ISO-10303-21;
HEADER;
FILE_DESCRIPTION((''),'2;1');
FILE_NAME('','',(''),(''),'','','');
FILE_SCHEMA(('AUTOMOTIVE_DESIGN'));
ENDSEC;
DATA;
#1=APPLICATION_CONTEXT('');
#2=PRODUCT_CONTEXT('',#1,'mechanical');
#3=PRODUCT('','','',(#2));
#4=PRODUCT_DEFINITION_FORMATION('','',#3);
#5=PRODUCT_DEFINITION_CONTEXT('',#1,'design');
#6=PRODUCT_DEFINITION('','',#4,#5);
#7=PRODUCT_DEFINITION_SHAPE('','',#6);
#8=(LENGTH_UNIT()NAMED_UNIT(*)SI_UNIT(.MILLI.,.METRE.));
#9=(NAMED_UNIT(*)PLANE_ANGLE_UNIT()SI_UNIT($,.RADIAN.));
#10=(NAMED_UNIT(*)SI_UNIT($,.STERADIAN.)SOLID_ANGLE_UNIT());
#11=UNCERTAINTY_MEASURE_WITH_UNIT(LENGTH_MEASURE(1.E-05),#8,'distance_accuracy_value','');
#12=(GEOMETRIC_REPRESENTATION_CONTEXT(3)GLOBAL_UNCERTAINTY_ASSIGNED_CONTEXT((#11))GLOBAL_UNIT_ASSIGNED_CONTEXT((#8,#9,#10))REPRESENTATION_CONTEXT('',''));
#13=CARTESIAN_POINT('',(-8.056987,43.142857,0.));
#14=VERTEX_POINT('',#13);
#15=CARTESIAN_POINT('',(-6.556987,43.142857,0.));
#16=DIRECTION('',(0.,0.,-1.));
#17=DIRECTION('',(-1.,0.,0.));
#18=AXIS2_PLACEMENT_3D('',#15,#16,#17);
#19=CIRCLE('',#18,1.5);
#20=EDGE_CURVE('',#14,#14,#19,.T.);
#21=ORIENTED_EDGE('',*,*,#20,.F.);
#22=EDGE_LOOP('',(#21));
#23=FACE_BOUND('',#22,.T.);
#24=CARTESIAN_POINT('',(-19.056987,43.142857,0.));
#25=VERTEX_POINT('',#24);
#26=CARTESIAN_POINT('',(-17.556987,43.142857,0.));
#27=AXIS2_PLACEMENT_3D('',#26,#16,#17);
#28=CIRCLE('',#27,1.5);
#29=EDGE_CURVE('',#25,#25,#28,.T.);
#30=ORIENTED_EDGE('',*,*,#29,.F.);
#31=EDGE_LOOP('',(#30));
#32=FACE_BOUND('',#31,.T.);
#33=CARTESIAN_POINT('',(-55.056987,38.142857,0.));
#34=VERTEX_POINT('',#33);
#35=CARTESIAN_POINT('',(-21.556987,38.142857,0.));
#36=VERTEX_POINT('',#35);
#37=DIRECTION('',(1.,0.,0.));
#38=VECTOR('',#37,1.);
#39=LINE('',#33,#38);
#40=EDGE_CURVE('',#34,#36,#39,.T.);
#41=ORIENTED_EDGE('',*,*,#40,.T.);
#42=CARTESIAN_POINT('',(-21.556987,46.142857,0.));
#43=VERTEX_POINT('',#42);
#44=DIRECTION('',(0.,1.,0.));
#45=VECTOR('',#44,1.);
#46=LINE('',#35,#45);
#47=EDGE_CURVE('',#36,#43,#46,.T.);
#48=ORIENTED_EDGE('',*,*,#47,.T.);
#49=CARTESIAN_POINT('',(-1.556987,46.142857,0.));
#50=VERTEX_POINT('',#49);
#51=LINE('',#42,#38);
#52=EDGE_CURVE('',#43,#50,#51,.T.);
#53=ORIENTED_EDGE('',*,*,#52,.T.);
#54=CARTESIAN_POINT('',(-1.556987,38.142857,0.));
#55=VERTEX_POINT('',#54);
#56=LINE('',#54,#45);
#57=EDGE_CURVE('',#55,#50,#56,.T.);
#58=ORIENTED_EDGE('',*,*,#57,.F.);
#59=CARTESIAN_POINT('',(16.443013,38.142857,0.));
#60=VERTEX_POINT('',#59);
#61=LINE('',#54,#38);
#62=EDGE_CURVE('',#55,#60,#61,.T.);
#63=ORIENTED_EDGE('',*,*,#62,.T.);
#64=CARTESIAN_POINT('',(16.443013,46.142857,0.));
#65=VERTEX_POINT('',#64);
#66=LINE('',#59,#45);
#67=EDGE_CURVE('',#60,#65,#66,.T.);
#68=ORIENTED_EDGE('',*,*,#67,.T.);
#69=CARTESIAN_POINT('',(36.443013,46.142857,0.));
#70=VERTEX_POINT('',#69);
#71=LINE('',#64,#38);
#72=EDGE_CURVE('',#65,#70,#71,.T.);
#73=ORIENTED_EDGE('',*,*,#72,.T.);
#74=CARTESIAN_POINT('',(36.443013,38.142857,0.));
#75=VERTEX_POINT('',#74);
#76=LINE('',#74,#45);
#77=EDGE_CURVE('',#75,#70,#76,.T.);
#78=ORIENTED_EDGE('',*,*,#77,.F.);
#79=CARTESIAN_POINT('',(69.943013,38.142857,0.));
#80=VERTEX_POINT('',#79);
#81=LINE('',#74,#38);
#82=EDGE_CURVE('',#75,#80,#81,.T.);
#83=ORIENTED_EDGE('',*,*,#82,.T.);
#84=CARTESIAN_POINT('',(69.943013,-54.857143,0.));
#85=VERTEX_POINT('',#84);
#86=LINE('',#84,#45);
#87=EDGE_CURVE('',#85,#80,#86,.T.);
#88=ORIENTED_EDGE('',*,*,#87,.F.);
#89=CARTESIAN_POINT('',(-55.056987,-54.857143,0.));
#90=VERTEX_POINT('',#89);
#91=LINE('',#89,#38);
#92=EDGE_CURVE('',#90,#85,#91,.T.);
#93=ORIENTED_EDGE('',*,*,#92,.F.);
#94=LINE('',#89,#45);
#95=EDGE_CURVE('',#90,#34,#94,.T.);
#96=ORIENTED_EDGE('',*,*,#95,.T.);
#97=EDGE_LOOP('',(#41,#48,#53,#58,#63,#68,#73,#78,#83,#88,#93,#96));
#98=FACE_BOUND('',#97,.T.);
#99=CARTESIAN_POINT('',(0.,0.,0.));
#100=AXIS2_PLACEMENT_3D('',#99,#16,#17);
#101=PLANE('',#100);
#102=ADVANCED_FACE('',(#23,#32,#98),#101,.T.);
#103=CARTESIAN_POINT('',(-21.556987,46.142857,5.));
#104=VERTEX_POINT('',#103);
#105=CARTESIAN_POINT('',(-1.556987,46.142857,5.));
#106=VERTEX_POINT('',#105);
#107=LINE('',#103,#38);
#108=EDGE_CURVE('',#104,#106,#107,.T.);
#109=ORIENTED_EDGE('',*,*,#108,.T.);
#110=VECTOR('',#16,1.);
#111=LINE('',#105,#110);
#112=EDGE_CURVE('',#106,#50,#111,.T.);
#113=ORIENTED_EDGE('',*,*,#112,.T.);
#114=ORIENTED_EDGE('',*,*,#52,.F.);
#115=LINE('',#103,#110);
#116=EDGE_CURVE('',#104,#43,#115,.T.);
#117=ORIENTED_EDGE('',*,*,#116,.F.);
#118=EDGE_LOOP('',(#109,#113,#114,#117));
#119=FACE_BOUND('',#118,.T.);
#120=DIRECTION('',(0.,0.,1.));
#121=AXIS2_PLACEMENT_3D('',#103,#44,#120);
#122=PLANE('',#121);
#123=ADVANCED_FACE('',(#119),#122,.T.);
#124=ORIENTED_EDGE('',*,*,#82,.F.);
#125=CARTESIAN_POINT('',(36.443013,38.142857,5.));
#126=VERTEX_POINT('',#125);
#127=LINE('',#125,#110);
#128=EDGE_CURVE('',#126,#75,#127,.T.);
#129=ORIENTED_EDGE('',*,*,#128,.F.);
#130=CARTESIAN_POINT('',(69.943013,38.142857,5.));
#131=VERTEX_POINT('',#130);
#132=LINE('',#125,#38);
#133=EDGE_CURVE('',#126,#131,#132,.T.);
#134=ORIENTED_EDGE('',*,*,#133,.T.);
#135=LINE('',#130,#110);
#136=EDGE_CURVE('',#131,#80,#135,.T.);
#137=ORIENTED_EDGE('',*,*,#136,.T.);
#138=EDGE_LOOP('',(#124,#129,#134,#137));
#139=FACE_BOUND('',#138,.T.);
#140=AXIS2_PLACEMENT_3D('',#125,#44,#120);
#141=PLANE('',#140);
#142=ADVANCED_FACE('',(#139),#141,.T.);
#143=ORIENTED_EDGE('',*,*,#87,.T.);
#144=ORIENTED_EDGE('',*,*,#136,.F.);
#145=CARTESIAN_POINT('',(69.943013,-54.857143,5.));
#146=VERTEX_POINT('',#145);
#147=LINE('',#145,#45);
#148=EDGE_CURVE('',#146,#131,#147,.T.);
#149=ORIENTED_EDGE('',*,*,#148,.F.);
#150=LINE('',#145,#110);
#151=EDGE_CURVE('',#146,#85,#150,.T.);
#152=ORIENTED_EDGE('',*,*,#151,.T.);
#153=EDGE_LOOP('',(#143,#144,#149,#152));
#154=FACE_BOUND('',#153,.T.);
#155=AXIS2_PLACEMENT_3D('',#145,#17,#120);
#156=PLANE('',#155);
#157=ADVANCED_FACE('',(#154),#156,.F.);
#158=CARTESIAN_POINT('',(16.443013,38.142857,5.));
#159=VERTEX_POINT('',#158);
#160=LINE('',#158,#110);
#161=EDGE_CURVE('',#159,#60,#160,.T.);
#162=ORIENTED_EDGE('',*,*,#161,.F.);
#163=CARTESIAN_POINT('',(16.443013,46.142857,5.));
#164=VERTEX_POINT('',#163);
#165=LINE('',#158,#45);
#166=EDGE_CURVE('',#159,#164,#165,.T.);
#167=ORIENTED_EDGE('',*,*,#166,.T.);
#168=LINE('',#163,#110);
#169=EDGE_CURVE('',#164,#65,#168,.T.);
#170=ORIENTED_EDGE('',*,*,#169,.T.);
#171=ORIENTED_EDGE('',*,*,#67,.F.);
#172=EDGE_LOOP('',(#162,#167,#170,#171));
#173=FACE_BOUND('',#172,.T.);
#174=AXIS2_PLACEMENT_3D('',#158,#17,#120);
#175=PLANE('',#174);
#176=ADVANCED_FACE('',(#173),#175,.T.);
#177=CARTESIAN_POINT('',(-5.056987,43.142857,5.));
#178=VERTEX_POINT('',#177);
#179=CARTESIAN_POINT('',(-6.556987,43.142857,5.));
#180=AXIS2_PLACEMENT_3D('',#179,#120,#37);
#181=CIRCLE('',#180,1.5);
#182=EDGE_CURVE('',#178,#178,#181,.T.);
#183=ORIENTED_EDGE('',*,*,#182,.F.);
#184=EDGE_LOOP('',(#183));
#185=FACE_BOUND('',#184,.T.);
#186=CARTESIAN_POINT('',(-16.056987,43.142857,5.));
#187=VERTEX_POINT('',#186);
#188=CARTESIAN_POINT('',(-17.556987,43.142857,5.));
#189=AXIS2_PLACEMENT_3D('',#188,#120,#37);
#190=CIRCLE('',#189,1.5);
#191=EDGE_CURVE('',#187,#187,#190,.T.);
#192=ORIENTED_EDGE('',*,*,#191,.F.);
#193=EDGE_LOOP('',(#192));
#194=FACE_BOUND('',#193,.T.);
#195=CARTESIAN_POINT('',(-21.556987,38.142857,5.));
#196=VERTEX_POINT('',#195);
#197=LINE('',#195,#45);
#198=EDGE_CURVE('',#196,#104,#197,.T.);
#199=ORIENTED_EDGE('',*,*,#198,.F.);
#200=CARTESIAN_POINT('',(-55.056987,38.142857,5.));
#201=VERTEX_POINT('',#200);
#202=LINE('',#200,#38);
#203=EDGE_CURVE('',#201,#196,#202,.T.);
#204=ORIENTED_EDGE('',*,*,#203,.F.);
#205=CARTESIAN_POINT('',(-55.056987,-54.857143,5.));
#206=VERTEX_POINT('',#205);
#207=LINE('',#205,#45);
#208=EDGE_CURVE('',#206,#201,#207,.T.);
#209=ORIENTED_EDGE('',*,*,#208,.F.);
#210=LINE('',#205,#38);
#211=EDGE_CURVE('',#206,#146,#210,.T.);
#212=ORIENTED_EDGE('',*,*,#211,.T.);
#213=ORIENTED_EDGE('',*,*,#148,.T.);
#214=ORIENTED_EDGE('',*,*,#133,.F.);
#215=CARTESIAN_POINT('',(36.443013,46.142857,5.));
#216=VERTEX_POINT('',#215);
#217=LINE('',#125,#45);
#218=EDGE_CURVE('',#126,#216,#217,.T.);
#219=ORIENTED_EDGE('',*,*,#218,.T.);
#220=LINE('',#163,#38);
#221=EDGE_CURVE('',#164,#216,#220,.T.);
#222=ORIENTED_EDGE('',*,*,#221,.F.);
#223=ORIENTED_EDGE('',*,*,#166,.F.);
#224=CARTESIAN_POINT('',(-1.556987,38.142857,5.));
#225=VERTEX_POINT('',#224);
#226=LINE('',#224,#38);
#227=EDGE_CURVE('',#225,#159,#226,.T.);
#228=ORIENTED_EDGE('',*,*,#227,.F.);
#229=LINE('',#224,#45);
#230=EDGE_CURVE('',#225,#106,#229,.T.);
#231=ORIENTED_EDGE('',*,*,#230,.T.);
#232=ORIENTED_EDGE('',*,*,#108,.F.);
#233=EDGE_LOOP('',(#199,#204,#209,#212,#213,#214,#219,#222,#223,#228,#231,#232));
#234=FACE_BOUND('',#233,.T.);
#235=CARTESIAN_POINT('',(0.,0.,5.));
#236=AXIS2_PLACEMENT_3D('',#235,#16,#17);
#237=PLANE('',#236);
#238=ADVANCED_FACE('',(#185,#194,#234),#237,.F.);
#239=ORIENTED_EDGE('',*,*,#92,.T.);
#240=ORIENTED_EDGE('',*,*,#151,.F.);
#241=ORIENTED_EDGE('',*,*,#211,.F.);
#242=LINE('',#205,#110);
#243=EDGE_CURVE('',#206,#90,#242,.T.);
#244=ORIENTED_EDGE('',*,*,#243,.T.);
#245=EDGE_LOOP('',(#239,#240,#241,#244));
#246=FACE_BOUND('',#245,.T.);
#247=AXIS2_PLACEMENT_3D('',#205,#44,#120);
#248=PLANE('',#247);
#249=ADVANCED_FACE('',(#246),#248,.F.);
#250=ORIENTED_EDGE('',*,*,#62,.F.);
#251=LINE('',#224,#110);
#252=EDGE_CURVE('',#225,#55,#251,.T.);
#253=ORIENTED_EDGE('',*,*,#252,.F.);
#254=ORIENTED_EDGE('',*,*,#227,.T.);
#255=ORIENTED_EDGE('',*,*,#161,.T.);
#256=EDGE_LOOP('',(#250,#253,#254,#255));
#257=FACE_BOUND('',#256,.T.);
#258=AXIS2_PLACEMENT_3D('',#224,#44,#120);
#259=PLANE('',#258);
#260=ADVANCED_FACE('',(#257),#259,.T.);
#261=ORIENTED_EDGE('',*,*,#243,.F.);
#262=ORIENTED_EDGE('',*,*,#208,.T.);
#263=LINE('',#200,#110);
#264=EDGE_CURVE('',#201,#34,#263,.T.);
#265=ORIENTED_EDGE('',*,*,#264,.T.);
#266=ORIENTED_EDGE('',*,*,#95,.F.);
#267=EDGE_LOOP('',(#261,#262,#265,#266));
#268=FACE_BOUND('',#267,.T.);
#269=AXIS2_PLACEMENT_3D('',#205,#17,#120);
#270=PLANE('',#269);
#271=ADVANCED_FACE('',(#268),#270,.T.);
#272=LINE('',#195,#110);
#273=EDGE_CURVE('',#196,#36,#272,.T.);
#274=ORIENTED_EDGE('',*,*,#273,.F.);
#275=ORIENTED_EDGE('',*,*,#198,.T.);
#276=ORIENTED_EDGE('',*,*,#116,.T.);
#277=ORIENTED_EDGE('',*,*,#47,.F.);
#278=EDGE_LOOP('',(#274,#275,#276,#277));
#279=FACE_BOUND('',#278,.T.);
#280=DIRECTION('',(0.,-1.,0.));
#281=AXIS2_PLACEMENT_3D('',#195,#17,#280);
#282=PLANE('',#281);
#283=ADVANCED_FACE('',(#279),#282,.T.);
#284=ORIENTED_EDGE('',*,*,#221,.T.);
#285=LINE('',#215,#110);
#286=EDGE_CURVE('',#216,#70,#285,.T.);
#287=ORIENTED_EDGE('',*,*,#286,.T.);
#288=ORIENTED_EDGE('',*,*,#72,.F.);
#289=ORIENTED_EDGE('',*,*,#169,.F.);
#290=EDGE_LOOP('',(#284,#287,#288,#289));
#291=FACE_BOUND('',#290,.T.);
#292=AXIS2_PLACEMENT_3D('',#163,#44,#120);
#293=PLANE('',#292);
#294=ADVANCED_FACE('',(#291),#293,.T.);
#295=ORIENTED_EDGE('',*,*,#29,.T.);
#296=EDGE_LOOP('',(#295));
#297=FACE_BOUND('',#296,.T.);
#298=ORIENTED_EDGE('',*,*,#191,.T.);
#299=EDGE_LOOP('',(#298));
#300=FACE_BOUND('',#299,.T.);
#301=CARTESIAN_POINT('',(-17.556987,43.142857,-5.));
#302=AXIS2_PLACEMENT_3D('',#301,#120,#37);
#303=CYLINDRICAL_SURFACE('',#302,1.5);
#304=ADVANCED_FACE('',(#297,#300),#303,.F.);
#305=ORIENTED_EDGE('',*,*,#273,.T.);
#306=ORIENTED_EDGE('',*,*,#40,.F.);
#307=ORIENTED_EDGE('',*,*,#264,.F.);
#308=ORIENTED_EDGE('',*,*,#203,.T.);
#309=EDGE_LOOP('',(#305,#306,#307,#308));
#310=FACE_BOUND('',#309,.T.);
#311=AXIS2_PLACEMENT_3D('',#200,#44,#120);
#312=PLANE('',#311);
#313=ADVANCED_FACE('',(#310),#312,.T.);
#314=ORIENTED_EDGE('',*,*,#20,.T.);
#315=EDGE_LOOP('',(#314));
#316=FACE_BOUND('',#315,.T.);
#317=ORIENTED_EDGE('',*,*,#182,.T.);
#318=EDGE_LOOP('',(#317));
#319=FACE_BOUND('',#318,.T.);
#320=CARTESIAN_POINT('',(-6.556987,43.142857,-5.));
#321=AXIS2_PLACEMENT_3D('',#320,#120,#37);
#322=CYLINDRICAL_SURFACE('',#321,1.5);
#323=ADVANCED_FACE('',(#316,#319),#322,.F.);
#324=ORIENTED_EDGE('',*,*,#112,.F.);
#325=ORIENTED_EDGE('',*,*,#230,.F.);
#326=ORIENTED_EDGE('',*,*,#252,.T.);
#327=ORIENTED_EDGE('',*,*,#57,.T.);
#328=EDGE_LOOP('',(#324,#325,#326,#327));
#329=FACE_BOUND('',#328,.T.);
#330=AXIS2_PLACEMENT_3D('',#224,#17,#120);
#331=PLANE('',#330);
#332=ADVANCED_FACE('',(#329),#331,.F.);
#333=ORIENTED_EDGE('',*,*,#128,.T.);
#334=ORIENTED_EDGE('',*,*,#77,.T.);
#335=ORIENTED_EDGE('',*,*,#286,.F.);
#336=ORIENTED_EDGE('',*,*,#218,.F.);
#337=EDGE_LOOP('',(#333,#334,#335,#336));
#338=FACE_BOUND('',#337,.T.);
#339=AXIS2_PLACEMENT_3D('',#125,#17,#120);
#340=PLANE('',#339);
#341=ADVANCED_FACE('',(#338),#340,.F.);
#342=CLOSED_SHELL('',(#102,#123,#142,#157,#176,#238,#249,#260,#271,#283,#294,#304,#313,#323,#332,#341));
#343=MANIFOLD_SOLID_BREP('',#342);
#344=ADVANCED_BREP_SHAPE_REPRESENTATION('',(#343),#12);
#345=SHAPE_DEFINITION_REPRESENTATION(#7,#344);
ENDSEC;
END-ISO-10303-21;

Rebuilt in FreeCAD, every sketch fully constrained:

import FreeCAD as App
import Part
import Sketcher
from FreeCAD import Vector

doc = App.newDocument("Part")
params = doc.addObject("Spreadsheet::Sheet", "Params")
for row, (alias, value) in enumerate([
    ("sketch1_width", "18 mm"),
    ("sketch1_width2", "20 mm"),
    ("sketch1_width3", "125 mm"),
    ("sketch1_height", "8 mm"),
    ("sketch1_height2", "93 mm"),
    ("pad1_length", "5 mm"),
    ("sketch2_diameter", "3 mm"),
    ("pocket1_length", "10 mm"),
], start=1):
    params.set(f"A{row}", alias)
    params.set(f"B{row}", "=" + value)
    params.setAlias(f"B{row}", alias)

body = doc.addObject("PartDesign::Body", "Body")

# Sketch on XY plane
sketch1 = doc.addObject("Sketcher::SketchObject", "Sketch")
body.addObject(sketch1)
sketch1.AttachmentSupport = (doc.XY_Plane, [""])
sketch1.MapMode = "FlatFace"
sketch1.addGeometry(Part.LineSegment(Vector(16.443013, 38.142857, 0), Vector(-1.556987, 38.142857, 0)), False)
sketch1.addGeometry(Part.LineSegment(Vector(-1.556987, 38.142857, 0), Vector(-1.556987, 46.142857, 0)), False)
sketch1.addGeometry(Part.LineSegment(Vector(-1.556987, 46.142857, 0), Vector(-21.556987, 46.142857, 0)), False)
sketch1.addGeometry(Part.LineSegment(Vector(-21.556987, 46.142857, 0), Vector(-21.556987, 38.142857, 0)), False)
sketch1.addGeometry(Part.LineSegment(Vector(-21.556987, 38.142857, 0), Vector(-55.056987, 38.142857, 0)), False)
sketch1.addGeometry(Part.LineSegment(Vector(-55.056987, 38.142857, 0), Vector(-55.056987, -54.857143, 0)), False)
sketch1.addGeometry(Part.LineSegment(Vector(-55.056987, -54.857143, 0), Vector(69.943013, -54.857143, 0)), False)
sketch1.addGeometry(Part.LineSegment(Vector(69.943013, -54.857143, 0), Vector(69.943013, 38.142857, 0)), False)
sketch1.addGeometry(Part.LineSegment(Vector(69.943013, 38.142857, 0), Vector(36.443013, 38.142857, 0)), False)
sketch1.addGeometry(Part.LineSegment(Vector(36.443013, 38.142857, 0), Vector(36.443013, 46.142857, 0)), False)
sketch1.addGeometry(Part.LineSegment(Vector(36.443013, 46.142857, 0), Vector(16.443013, 46.142857, 0)), False)
sketch1.addGeometry(Part.LineSegment(Vector(16.443013, 46.142857, 0), Vector(16.443013, 38.142857, 0)), False)
sketch1.addConstraint(Sketcher.Constraint("Coincident", 0, 2, 1, 1))
sketch1.addConstraint(Sketcher.Constraint("Coincident", 1, 2, 2, 1))
sketch1.addConstraint(Sketcher.Constraint("Coincident", 2, 2, 3, 1))
sketch1.addConstraint(Sketcher.Constraint("Coincident", 3, 2, 4, 1))
sketch1.addConstraint(Sketcher.Constraint("Coincident", 4, 2, 5, 1))
sketch1.addConstraint(Sketcher.Constraint("Coincident", 5, 2, 6, 1))
sketch1.addConstraint(Sketcher.Constraint("Coincident", 6, 2, 7, 1))
sketch1.addConstraint(Sketcher.Constraint("Coincident", 7, 2, 8, 1))
sketch1.addConstraint(Sketcher.Constraint("Coincident", 8, 2, 9, 1))
sketch1.addConstraint(Sketcher.Constraint("Coincident", 9, 2, 10, 1))
sketch1.addConstraint(Sketcher.Constraint("Coincident", 10, 2, 11, 1))
sketch1.addConstraint(Sketcher.Constraint("Coincident", 11, 2, 0, 1))
sketch1.addConstraint(Sketcher.Constraint("Horizontal", 0))
sketch1.addConstraint(Sketcher.Constraint("Vertical", 1))
sketch1.addConstraint(Sketcher.Constraint("Horizontal", 2))
sketch1.addConstraint(Sketcher.Constraint("Vertical", 3))
sketch1.addConstraint(Sketcher.Constraint("Horizontal", 4))
sketch1.addConstraint(Sketcher.Constraint("Vertical", 5))
sketch1.addConstraint(Sketcher.Constraint("Horizontal", 6))
sketch1.addConstraint(Sketcher.Constraint("Vertical", 7))
sketch1.addConstraint(Sketcher.Constraint("Horizontal", 8))
sketch1.addConstraint(Sketcher.Constraint("Vertical", 9))
sketch1.addConstraint(Sketcher.Constraint("Horizontal", 10))
sketch1.addConstraint(Sketcher.Constraint("Vertical", 11))
sketch1.addConstraint(Sketcher.Constraint("Horizontal", 0, 2, 3, 2))
sketch1.addConstraint(Sketcher.Constraint("Horizontal", 4, 2, 7, 2))
sketch1.addConstraint(Sketcher.Constraint("Horizontal", 2, 2, 9, 2))
sketch1.addConstraint(Sketcher.Constraint("Equal", 4, 8))
sketch1.addConstraint(Sketcher.Constraint("Equal", 2, 10))
sketch1.addConstraint(Sketcher.Constraint("DistanceX", 0, 2, 0, 1, 18.0))
sketch1.addConstraint(Sketcher.Constraint("DistanceX", 2, 2, 2, 1, 20.0))
sketch1.addConstraint(Sketcher.Constraint("DistanceX", 6, 1, 6, 2, 125.0))
sketch1.addConstraint(Sketcher.Constraint("DistanceY", 1, 1, 1, 2, 8.0))
sketch1.addConstraint(Sketcher.Constraint("DistanceY", 5, 2, 5, 1, 93.0))
sketch1.addConstraint(Sketcher.Constraint("DistanceX", 0, 2, -1, 1, 1.556987))
sketch1.addConstraint(Sketcher.Constraint("DistanceY", -1, 1, 0, 2, 38.142857))
sketch1.setExpression("Constraints[29]", "Params.sketch1_width")
sketch1.setExpression("Constraints[30]", "Params.sketch1_width2")
sketch1.setExpression("Constraints[31]", "Params.sketch1_width3")
sketch1.setExpression("Constraints[32]", "Params.sketch1_height")
sketch1.setExpression("Constraints[33]", "Params.sketch1_height2")
pad1 = doc.addObject("PartDesign::Pad", "Pad")
body.addObject(pad1)
pad1.Profile = sketch1
pad1.setExpression("Length", "Params.pad1_length")

# Sketch on XY plane
sketch2 = doc.addObject("Sketcher::SketchObject", "Sketch001")
body.addObject(sketch2)
sketch2.AttachmentSupport = (doc.XY_Plane, [""])
sketch2.MapMode = "FlatFace"
sketch2.AttachmentOffset = App.Placement(Vector(0, 0, 5), App.Rotation())
sketch2.addGeometry(Part.Circle(Vector(-17.556987, 43.142857, 0), Vector(0, 0, 1), 1.5), False)
sketch2.addGeometry(Part.Circle(Vector(-6.556987, 43.142857, 0), Vector(0, 0, 1), 1.5), False)
sketch2.addConstraint(Sketcher.Constraint("Equal", 0, 1))
sketch2.addConstraint(Sketcher.Constraint("Horizontal", 0, 3, 1, 3))
sketch2.addConstraint(Sketcher.Constraint("Diameter", 0, 3.0))
sketch2.addConstraint(Sketcher.Constraint("DistanceX", 0, 3, 1, 3, 11.0))
sketch2.addConstraint(Sketcher.Constraint("DistanceX", 0, 3, -1, 1, 17.556987))
sketch2.addConstraint(Sketcher.Constraint("DistanceY", -1, 1, 0, 3, 43.142857))
sketch2.setExpression("Constraints[2]", "Params.sketch2_diameter")
pocket1 = doc.addObject("PartDesign::Pocket", "Pocket")
body.addObject(pocket1)
pocket1.Profile = sketch2
pocket1.setExpression("Length", "Params.pocket1_length")

doc.recompute()
